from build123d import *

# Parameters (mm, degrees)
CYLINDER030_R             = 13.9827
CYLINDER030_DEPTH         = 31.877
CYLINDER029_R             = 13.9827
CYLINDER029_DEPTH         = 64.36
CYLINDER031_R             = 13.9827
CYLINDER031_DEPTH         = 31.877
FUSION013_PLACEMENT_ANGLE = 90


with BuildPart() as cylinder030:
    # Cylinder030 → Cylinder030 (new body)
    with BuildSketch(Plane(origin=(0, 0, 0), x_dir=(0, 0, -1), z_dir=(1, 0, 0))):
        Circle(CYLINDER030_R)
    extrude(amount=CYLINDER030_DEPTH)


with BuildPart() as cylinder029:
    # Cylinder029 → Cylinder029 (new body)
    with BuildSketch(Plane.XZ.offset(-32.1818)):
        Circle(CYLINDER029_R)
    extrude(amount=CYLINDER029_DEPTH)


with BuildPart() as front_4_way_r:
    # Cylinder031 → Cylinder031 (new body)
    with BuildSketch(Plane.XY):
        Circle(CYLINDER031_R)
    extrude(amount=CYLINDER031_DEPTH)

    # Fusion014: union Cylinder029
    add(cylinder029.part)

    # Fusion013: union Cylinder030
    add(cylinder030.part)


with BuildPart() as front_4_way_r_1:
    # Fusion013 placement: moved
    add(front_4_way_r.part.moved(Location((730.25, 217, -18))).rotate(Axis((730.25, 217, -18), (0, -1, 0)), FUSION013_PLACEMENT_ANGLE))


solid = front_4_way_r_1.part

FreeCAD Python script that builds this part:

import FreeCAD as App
import Part
import Sketcher
Q = App.Units.Quantity

doc = App.newDocument("Part")
params = doc.addObject("Spreadsheet::Sheet", "Params")
for row, (alias, value) in enumerate([
    ("sketch1_diameter", "1.101 in"),
    ("pad1_length", "1.255 in"),
    ("sketch2_diameter", "1.101 in"),
    ("pad2_length", "64.36 mm"),
    ("sketch3_diameter", "1.101 in"),
    ("pad3_length", "1.255 in"),
], start=1):
    params.set(f"A{row}", alias)
    params.set(f"B{row}", "=" + value)
    params.setAlias(f"B{row}", alias)

body = doc.addObject("PartDesign::Body", "Body")

# Sketch on YZ plane
sketch1 = doc.addObject("Sketcher::SketchObject", "Sketch")
body.addObject(sketch1)
sketch1.AttachmentSupport = (doc.YZ_Plane, [""])
sketch1.MapMode = "FlatFace"
sketch1.addGeometry(Part.Circle(App.Vector(0, 0, 0), App.Vector(0, 0, 1), 14), False)
sketch1.addConstraint(Sketcher.Constraint("Coincident", 0, 3, -1, 1))
sketch1.addConstraint(Sketcher.Constraint("Diameter", 0, Q("1.101 in")))
sketch1.setExpression("Constraints[1]", "Params.sketch1_diameter")
pad1 = doc.addObject("PartDesign::Pad", "Pad")
body.addObject(pad1)
pad1.Profile = sketch1
pad1.setExpression("Length", "Params.pad1_length")
body2 = doc.addObject("PartDesign::Body", "Body001")

# Sketch on XZ plane
sketch2 = doc.addObject("Sketcher::SketchObject", "Sketch001")
body2.addObject(sketch2)
sketch2.AttachmentSupport = (doc.getObject("XZ_Plane001"), [""])
sketch2.MapMode = "FlatFace"
sketch2.AttachmentOffset = App.Placement(App.Vector(0, 0, -1.267 * 25.4), App.Rotation())
sketch2.addGeometry(Part.Circle(App.Vector(0, 0, 0), App.Vector(0, 0, 1), 14), False)
sketch2.addConstraint(Sketcher.Constraint("Coincident", 0, 3, -1, 1))
sketch2.addConstraint(Sketcher.Constraint("Diameter", 0, Q("1.101 in")))
sketch2.setExpression("Constraints[1]", "Params.sketch2_diameter")
pad2 = doc.addObject("PartDesign::Pad", "Pad001")
body2.addObject(pad2)
pad2.Profile = sketch2
pad2.setExpression("Length", "Params.pad2_length")
body3 = doc.addObject("PartDesign::Body", "Body002")

# Sketch on XY plane
sketch3 = doc.addObject("Sketcher::SketchObject", "Sketch002")
body3.addObject(sketch3)
sketch3.AttachmentSupport = (doc.getObject("XY_Plane002"), [""])
sketch3.MapMode = "FlatFace"
sketch3.addGeometry(Part.Circle(App.Vector(0, 0, 0), App.Vector(0, 0, 1), 14), False)
sketch3.addConstraint(Sketcher.Constraint("Coincident", 0, 3, -1, 1))
sketch3.addConstraint(Sketcher.Constraint("Diameter", 0, Q("1.101 in")))
sketch3.setExpression("Constraints[1]", "Params.sketch3_diameter")
pad3 = doc.addObject("PartDesign::Pad", "Pad002")
body3.addObject(pad3)
pad3.Profile = sketch3
pad3.setExpression("Length", "Params.pad3_length")
doc.recompute()

boolean = doc.addObject("PartDesign::Boolean", "Boolean")
body3.addObject(boolean)
boolean.Type = "Fuse"
boolean.addObjects([body2])
doc.recompute()

boolean2 = doc.addObject("PartDesign::Boolean", "Boolean001")
body3.addObject(boolean2)
boolean2.Type = "Fuse"
boolean2.addObjects([body])
body4 = doc.addObject("PartDesign::Body", "Body003")
doc.recompute()

body3.Placement = App.Placement(App.Vector(730.25, 217, -18), App.Rotation(App.Vector(0, -1, 0), 90))
boolean3 = doc.addObject("PartDesign::Boolean", "Boolean002")
body4.addObject(boolean3)
boolean3.Type = "Fuse"
boolean3.addObjects([body3])

doc.recompute()
